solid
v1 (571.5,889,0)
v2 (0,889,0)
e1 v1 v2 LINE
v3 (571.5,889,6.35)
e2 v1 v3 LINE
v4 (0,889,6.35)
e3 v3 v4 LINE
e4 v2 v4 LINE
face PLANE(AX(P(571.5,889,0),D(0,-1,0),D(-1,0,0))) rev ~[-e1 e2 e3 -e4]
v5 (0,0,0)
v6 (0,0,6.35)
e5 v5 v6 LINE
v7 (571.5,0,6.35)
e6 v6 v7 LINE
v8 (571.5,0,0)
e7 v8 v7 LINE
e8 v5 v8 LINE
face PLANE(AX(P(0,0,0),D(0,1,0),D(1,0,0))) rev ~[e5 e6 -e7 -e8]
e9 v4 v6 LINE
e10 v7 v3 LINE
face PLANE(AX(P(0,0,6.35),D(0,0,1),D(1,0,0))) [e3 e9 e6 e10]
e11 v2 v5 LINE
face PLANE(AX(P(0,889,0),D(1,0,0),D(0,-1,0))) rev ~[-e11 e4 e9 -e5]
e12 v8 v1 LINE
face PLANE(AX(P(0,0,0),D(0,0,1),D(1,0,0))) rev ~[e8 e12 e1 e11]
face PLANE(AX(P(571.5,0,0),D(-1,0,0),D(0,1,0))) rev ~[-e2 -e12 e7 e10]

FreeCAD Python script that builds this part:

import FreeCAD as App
import Part
import Sketcher
from FreeCAD import Vector
Q = App.Units.Quantity


def add_polygon(sketch, points):
    """Adds a closed chain of lines whose ends are joined by coincident constraints."""
    first, n = sketch.GeometryCount, len(points)
    for a, b in zip(points, points[1:] + points[:1]):
        sketch.addGeometry(Part.LineSegment(App.Vector(*a, 0), App.Vector(*b, 0)), False)
    for i in range(n):
        sketch.addConstraint(Sketcher.Constraint("Coincident", first + i, 2, first + (i + 1) % n, 1))

doc = App.newDocument("Part")
body = doc.addObject("PartDesign::Body", "Body")

# Sketch on XY plane
sketch1 = doc.addObject("Sketcher::SketchObject", "Sketch")
body.addObject(sketch1)
sketch1.AttachmentSupport = (doc.XY_Plane, [""])
sketch1.MapMode = "FlatFace"
add_polygon(sketch1, [(0, 889), (0, 0), (571.5, 0), (571.5, 889)])  # lines 0-3
sketch1.addConstraint([
    Sketcher.Constraint("Vertical", 0),
    Sketcher.Constraint("Horizontal", 1),
    Sketcher.Constraint("Vertical", 2),
    Sketcher.Constraint("Horizontal", 3),
    Sketcher.Constraint("Coincident", 0, 2, -1, 1),
    Sketcher.Constraint("DistanceY", 0, 2, 0, 1, Q("35 in")),
    Sketcher.Constraint("DistanceX", 1, 1, 1, 2, Q("22.5 in")),
])
pad1 = doc.addObject("PartDesign::Pad", "Pad")
body.addObject(pad1)
pad1.Profile = sketch1
pad1.Length = Q("0.25 in")

doc.recompute()
